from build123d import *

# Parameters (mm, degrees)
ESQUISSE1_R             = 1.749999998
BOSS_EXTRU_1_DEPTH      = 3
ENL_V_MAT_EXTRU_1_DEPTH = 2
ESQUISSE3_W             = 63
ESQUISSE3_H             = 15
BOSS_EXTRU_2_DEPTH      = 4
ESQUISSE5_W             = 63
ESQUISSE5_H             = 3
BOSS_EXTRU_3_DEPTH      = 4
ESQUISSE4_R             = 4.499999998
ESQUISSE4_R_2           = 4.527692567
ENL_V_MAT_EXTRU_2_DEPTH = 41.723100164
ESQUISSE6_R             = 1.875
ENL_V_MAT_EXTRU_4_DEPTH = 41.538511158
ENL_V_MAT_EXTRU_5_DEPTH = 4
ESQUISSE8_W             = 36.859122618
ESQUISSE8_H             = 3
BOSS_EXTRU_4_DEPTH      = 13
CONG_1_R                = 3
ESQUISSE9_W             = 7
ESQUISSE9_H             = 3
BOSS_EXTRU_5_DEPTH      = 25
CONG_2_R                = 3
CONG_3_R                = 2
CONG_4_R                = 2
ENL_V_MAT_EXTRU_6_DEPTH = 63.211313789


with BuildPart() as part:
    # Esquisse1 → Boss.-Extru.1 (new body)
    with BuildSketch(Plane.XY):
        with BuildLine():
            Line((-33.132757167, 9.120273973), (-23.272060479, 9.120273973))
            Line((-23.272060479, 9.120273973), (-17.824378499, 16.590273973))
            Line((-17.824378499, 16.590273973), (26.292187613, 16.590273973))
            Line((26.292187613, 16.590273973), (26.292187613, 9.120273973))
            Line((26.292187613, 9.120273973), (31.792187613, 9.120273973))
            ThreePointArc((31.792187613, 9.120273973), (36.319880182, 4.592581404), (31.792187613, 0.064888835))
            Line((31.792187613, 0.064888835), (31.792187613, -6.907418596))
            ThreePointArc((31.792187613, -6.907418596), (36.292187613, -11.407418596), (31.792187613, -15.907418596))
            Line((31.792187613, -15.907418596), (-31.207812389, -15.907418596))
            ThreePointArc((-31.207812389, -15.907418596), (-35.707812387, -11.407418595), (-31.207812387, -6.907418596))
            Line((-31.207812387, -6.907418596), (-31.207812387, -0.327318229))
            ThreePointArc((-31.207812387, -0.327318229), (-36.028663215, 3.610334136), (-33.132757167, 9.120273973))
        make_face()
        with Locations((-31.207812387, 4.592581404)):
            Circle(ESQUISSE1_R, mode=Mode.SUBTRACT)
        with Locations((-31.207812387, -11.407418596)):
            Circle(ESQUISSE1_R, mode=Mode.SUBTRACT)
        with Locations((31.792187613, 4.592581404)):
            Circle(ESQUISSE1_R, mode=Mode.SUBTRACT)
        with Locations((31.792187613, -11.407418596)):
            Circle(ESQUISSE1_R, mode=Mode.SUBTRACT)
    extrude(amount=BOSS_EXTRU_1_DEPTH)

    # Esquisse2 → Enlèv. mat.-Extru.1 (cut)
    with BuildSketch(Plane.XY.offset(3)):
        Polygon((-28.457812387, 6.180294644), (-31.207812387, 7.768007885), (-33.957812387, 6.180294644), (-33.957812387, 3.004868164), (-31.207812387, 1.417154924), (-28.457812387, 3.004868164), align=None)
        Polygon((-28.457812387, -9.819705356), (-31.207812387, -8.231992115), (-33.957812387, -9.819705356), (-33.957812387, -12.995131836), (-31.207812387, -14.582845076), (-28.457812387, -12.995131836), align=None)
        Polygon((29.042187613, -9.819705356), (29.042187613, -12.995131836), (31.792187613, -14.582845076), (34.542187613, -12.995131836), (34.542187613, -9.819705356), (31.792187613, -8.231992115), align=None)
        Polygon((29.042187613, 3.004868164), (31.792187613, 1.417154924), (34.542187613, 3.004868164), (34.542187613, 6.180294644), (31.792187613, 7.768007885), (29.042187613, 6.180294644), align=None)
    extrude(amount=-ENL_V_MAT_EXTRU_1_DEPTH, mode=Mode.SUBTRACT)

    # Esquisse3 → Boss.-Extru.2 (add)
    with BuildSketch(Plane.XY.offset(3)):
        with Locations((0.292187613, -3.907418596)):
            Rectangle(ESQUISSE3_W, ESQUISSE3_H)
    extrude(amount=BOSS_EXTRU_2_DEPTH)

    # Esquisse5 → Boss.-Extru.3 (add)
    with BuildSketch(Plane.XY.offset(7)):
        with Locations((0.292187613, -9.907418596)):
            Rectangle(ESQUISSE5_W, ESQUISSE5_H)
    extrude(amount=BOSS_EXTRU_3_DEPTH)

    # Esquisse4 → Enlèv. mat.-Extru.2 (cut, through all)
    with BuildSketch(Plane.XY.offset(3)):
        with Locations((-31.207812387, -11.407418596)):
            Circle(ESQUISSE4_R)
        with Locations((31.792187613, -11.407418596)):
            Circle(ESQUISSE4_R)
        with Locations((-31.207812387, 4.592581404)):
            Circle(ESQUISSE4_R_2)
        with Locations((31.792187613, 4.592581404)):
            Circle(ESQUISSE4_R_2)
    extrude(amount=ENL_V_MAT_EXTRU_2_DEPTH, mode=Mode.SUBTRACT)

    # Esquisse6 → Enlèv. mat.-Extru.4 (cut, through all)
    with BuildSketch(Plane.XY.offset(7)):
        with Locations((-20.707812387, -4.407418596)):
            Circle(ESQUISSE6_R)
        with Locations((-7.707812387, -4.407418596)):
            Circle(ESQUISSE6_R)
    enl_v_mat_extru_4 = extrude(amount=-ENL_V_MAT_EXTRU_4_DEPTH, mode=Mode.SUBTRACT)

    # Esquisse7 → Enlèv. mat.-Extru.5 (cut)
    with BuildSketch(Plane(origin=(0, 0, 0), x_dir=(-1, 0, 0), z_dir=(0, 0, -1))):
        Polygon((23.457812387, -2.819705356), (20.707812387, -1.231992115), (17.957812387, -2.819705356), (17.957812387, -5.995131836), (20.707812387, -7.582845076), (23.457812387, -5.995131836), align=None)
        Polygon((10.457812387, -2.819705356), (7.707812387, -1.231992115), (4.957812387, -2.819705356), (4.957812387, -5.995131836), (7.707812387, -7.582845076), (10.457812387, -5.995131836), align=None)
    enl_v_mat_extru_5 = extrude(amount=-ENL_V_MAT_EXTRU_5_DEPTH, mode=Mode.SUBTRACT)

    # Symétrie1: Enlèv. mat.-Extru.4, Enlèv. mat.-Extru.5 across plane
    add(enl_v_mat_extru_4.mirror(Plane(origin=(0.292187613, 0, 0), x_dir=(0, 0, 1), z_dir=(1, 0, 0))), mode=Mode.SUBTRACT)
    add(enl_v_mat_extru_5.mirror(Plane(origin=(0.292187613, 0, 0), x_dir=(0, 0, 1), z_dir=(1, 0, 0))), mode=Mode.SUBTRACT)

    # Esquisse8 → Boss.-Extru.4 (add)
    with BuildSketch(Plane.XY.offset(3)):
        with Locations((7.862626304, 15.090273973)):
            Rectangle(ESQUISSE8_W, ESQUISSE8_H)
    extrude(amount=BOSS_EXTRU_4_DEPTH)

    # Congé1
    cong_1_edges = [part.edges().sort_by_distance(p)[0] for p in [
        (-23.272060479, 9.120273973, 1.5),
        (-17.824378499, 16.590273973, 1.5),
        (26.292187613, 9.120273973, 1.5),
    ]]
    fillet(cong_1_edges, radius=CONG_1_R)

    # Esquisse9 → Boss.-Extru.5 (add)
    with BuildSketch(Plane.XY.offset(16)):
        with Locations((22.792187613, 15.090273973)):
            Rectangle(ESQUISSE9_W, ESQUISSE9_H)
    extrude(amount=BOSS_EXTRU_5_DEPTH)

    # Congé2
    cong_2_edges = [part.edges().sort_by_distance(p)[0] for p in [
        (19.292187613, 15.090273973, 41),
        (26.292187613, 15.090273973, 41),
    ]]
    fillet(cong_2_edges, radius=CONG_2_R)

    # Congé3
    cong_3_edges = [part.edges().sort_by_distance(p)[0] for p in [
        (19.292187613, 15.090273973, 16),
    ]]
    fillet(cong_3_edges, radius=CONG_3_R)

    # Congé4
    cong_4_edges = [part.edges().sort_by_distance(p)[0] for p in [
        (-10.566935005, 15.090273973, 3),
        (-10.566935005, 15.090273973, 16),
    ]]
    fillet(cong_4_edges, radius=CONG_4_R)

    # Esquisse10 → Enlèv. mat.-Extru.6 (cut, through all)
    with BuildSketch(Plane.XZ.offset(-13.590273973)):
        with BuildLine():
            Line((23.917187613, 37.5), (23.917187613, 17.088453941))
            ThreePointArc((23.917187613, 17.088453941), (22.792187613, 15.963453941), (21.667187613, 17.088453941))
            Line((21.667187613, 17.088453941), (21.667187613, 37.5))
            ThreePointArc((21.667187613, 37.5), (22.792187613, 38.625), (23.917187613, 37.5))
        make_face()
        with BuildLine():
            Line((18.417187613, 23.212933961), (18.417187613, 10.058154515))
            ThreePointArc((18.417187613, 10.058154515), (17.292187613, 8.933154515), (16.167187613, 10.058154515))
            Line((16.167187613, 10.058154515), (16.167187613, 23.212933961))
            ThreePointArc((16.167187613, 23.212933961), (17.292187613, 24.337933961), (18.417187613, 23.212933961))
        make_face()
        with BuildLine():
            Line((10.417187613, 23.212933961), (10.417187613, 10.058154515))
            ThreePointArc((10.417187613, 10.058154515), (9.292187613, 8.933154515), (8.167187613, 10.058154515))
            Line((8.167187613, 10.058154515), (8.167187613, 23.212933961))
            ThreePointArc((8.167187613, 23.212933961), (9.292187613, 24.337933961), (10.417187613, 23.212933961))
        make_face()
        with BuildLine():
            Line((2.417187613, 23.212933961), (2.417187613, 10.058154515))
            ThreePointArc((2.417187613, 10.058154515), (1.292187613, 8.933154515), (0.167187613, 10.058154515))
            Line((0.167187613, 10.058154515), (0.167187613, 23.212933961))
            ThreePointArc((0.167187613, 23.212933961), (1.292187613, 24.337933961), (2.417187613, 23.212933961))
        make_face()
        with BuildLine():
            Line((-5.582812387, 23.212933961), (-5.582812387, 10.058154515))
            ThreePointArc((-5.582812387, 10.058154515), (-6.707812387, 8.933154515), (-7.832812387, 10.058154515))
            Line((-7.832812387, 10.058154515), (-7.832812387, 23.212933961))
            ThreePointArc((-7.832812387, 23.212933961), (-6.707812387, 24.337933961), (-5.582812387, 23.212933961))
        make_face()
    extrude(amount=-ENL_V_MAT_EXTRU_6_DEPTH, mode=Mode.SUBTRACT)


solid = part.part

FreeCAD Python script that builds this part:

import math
import FreeCAD as App
import Part
import Sketcher

V = App.Vector
Q = App.Units.Quantity


def edges_at(feature, points):
    """Names of the edges that pass closest to the given points."""
    edges = feature.Shape.Edges
    near = lambda p: min(range(len(edges)), key=lambda i: edges[i].distToShape(Part.Vertex(*p))[0])
    return sorted({f"Edge{near(p) + 1}" for p in points})

doc = App.newDocument("Part")
params = doc.addObject("Spreadsheet::Sheet", "Params")
for row, (alias, value) in enumerate([
    ("sketch1_diameter", "3.5 mm"),
    ("sketch1_radius", "4.5 mm"),
    ("sketch1_width", "63 mm"),
    ("sketch1_width2", "5.5 mm"),
    ("sketch1_height", "7.47 mm"),
    ("pad1_length", "3 mm"),
    ("pocket1_length", "2 mm"),
    ("sketch3_width", "63 mm"),
    ("sketch3_height", "15 mm"),
    ("pad2_length", "4 mm"),
    ("sketch4_width", "63 mm"),
    ("sketch4_height", "3 mm"),
    ("pad3_length", "4 mm"),
    ("sketch5_diameter", "9 mm"),
    ("sketch6_diameter", "3.75 mm"),
    ("pocket4_length", "4 mm"),
    ("sketch8_height", "3 mm"),
    ("pad4_length", "13 mm"),
    ("fillet_radius", "3 mm"),
    ("sketch9_width", "7 mm"),
    ("sketch9_height", "3 mm"),
    ("pad5_length", "25 mm"),
    ("fillet2_radius", "3 mm"),
    ("fillet3_radius", "2 mm"),
    ("fillet4_radius", "2 mm"),
], start=1):
    params.set(f"A{row}", alias)
    params.set(f"B{row}", "=" + value)
    params.setAlias(f"B{row}", alias)

body = doc.addObject("PartDesign::Body", "Body")

# Sketch on XY plane
sketch1 = body.newObject("Sketcher::SketchObject", "Sketch")
sketch1.AttachmentSupport = (doc.getObject("XY_Plane"), [""])
sketch1.MapMode = "FlatFace"
sketch1.addGeometry([
    Part.LineSegment(V(-23.3, 9.1, 0), V(-33.1, 9.1, 0)),  # 0
    Part.ArcOfCircle(Part.Circle(V(-31.2, 4.6, 0), V(0, 0, 1), 4.9), math.radians(113), math.radians(270)),  # 1
    Part.LineSegment(V(-31.2, -0.3, 0), V(-31.2, -6.9, 0)),  # 2
    Part.ArcOfCircle(Part.Circle(V(-31.2, -11.4, 0), V(0, 0, 1), 4.5), math.radians(90), math.radians(270)),  # 3
    Part.LineSegment(V(-31.2, -15.9, 0), V(31.8, -15.9, 0)),  # 4
    Part.ArcOfCircle(Part.Circle(V(31.8, -11.4, 0), V(0, 0, 1), 4.5), math.radians(-90), math.radians(90)),  # 5
    Part.LineSegment(V(31.8, -6.9, 0), V(31.8, 0.1, 0)),  # 6
    Part.ArcOfCircle(Part.Circle(V(31.8, 4.6, 0), V(0, 0, 1), 4.5), math.radians(-90), math.radians(90)),  # 7
    Part.LineSegment(V(31.8, 9.1, 0), V(26.3, 9.1, 0)),  # 8
    Part.LineSegment(V(26.3, 9.1, 0), V(26.3, 16.6, 0)),  # 9
    Part.LineSegment(V(26.3, 16.6, 0), V(-17.8, 16.6, 0)),  # 10
    Part.LineSegment(V(-17.8, 16.6, 0), V(-23.3, 9.1, 0)),  # 11
    Part.Circle(V(31.8, -11.4, 0), V(0, 0, 1), 1.7),  # 12
    Part.Circle(V(-31.2, -11.4, 0), V(0, 0, 1), 1.7),  # 13
    Part.Circle(V(31.8, 4.6, 0), V(0, 0, 1), 1.7),  # 14
    Part.Circle(V(-31.2, 4.6, 0), V(0, 0, 1), 1.7),  # 15
], False)
sketch1.addConstraint([
    Sketcher.Constraint("Coincident", 0, 2, 1, 1),
    Sketcher.Constraint("Coincident", 1, 2, 2, 1),
    Sketcher.Constraint("Coincident", 2, 2, 3, 1),
    Sketcher.Constraint("Tangent", 3, 2, 4, 1),
    Sketcher.Constraint("Tangent", 4, 2, 5, 1),
    Sketcher.Constraint("Coincident", 5, 2, 6, 1),
    Sketcher.Constraint("Coincident", 6, 2, 7, 1),
    Sketcher.Constraint("Tangent", 7, 2, 8, 1),
    Sketcher.Constraint("Coincident", 8, 2, 9, 1),
    Sketcher.Constraint("Coincident", 9, 2, 10, 1),
    Sketcher.Constraint("Coincident", 10, 2, 11, 1),
    Sketcher.Constraint("Coincident", 11, 2, 0, 1),
    Sketcher.Constraint("Horizontal", 0),
    Sketcher.Constraint("Vertical", 2),
    Sketcher.Constraint("Horizontal", 4),
    Sketcher.Constraint("Vertical", 6),
    Sketcher.Constraint("Horizontal", 8),
    Sketcher.Constraint("Vertical", 9),
    Sketcher.Constraint("Horizontal", 10),
    Sketcher.Constraint("Coincident", 12, 3, 5, 3),
    Sketcher.Constraint("Coincident", 13, 3, 3, 3),
    Sketcher.Constraint("Coincident", 14, 3, 7, 3),
    Sketcher.Constraint("Coincident", 15, 3, 1, 3),
    Sketcher.Constraint("Equal", 3, 5),
    Sketcher.Constraint("Equal", 12, 13),
    Sketcher.Constraint("Equal", 13, 14),
    Sketcher.Constraint("Equal", 14, 15),
    Sketcher.Constraint("Horizontal", 1, 3, 7, 3),
    Sketcher.Constraint("Horizontal", 0, 2, 7, 2),
    Sketcher.Constraint("Vertical", 1, 3, 3, 3),
    Sketcher.Constraint("Vertical", 5, 3, 7, 3),
    Sketcher.Constraint("Vertical", 15, 3, 1, 2),
    Sketcher.Constraint("Vertical", 4, 2, 5, 2),
    Sketcher.Constraint("Diameter", 12, 3.5),
    Sketcher.Constraint("Radius", 3, 4.5),
    Sketcher.Constraint("DistanceX", 4, 1, 4, 2, 63.0),
    Sketcher.Constraint("DistanceX", 8, 2, 8, 1, 5.5),
    Sketcher.Constraint("DistanceY", 3, 3, 1, 3, 16.0),
    Sketcher.Constraint("DistanceY", 9, 1, 9, 2, 7.47),
    Sketcher.Constraint("Radius", 1, 4.9199),
    Sketcher.Constraint("Radius", 7, 4.527693),
    Sketcher.Constraint("Distance", 11, 9.245439),
    Sketcher.Constraint("DistanceX", 0, 2, 0, 1, 9.860697),
    Sketcher.Constraint("DistanceY", -1, 1, 1, 3, 4.592581),
    Sketcher.Constraint("DistanceX", 10, 2, -1, 1, 17.824378),
])
sketch1.setExpression("Constraints[33]", "Params.sketch1_diameter")
sketch1.setExpression("Constraints[34]", "Params.sketch1_radius")
sketch1.setExpression("Constraints[35]", "Params.sketch1_width")
sketch1.setExpression("Constraints[36]", "Params.sketch1_width2")
sketch1.setExpression("Constraints[38]", "Params.sketch1_height")
pad1 = body.newObject("PartDesign::Pad", "Pad")
pad1.Profile = sketch1
pad1.setExpression("Length", "Params.pad1_length")

# Sketch on XY plane
sketch2 = body.newObject("Sketcher::SketchObject", "Sketch001")
sketch2.AttachmentSupport = (doc.getObject("XY_Plane"), [""])
sketch2.MapMode = "FlatFace"
sketch2.AttachmentOffset = App.Placement(V(0, 0, 3), App.Rotation())
sketch2.addGeometry([
    Part.LineSegment(V(-28.5, 6.2, 0), V(-31.2, 7.8, 0)),  # 0
    Part.LineSegment(V(-31.2, 7.8, 0), V(-34, 6.2, 0)),  # 1
    Part.LineSegment(V(-34, 6.2, 0), V(-34, 3, 0)),  # 2
    Part.LineSegment(V(-34, 3, 0), V(-31.2, 1.4, 0)),  # 3
    Part.LineSegment(V(-31.2, 1.4, 0), V(-28.5, 3, 0)),  # 4
    Part.LineSegment(V(-28.5, 3, 0), V(-28.5, 6.2, 0)),  # 5
    Part.LineSegment(V(-28.5, -9.8, 0), V(-31.2, -8.2, 0)),  # 6
    Part.LineSegment(V(-31.2, -8.2, 0), V(-34, -9.8, 0)),  # 7
    Part.LineSegment(V(-34, -9.8, 0), V(-34, -13, 0)),  # 8
    Part.LineSegment(V(-34, -13, 0), V(-31.2, -14.6, 0)),  # 9
    Part.LineSegment(V(-31.2, -14.6, 0), V(-28.5, -13, 0)),  # 10
    Part.LineSegment(V(-28.5, -13, 0), V(-28.5, -9.8, 0)),  # 11
    Part.LineSegment(V(29, -9.8, 0), V(29, -13, 0)),  # 12
    Part.LineSegment(V(29, -13, 0), V(31.8, -14.6, 0)),  # 13
    Part.LineSegment(V(31.8, -14.6, 0), V(34.5, -13, 0)),  # 14
    Part.LineSegment(V(34.5, -13, 0), V(34.5, -9.8, 0)),  # 15
    Part.LineSegment(V(34.5, -9.8, 0), V(31.8, -8.2, 0)),  # 16
    Part.LineSegment(V(31.8, -8.2, 0), V(29, -9.8, 0)),  # 17
    Part.LineSegment(V(29, 3, 0), V(31.8, 1.4, 0)),  # 18
    Part.LineSegment(V(31.8, 1.4, 0), V(34.5, 3, 0)),  # 19
    Part.LineSegment(V(34.5, 3, 0), V(34.5, 6.2, 0)),  # 20
    Part.LineSegment(V(34.5, 6.2, 0), V(31.8, 7.8, 0)),  # 21
    Part.LineSegment(V(31.8, 7.8, 0), V(29, 6.2, 0)),  # 22
    Part.LineSegment(V(29, 6.2, 0), V(29, 3, 0)),  # 23
], False)
sketch2.addConstraint([
    Sketcher.Constraint("Coincident", 0, 2, 1, 1),
    Sketcher.Constraint("Coincident", 1, 2, 2, 1),
    Sketcher.Constraint("Coincident", 2, 2, 3, 1),
    Sketcher.Constraint("Coincident", 3, 2, 4, 1),
    Sketcher.Constraint("Coincident", 4, 2, 5, 1),
    Sketcher.Constraint("Coincident", 5, 2, 0, 1),
    Sketcher.Constraint("Coincident", 6, 2, 7, 1),
    Sketcher.Constraint("Coincident", 7, 2, 8, 1),
    Sketcher.Constraint("Coincident", 8, 2, 9, 1),
    Sketcher.Constraint("Coincident", 9, 2, 10, 1),
    Sketcher.Constraint("Coincident", 10, 2, 11, 1),
    Sketcher.Constraint("Coincident", 11, 2, 6, 1),
    Sketcher.Constraint("Coincident", 12, 2, 13, 1),
    Sketcher.Constraint("Coincident", 13, 2, 14, 1),
    Sketcher.Constraint("Coincident", 14, 2, 15, 1),
    Sketcher.Constraint("Coincident", 15, 2, 16, 1),
    Sketcher.Constraint("Coincident", 16, 2, 17, 1),
    Sketcher.Constraint("Coincident", 17, 2, 12, 1),
    Sketcher.Constraint("Coincident", 18, 2, 19, 1),
    Sketcher.Constraint("Coincident", 19, 2, 20, 1),
    Sketcher.Constraint("Coincident", 20, 2, 21, 1),
    Sketcher.Constraint("Coincident", 21, 2, 22, 1),
    Sketcher.Constraint("Coincident", 22, 2, 23, 1),
    Sketcher.Constraint("Coincident", 23, 2, 18, 1),
    Sketcher.Constraint("Vertical", 2),
    Sketcher.Constraint("Vertical", 5),
    Sketcher.Constraint("Vertical", 8),
    Sketcher.Constraint("Vertical", 11),
    Sketcher.Constraint("Vertical", 12),
    Sketcher.Constraint("Vertical", 15),
    Sketcher.Constraint("Vertical", 20),
    Sketcher.Constraint("Vertical", 23),
    Sketcher.Constraint("Parallel", 0, 3),
    Sketcher.Constraint("Parallel", 1, 4),
    Sketcher.Constraint("Parallel", 3, 6),
    Sketcher.Constraint("Parallel", 4, 7),
    Sketcher.Constraint("Parallel", 6, 9),
    Sketcher.Constraint("Parallel", 7, 10),
    Sketcher.Constraint("Parallel", 9, 13),
    Sketcher.Constraint("Parallel", 10, 14),
    Sketcher.Constraint("Parallel", 13, 16),
    Sketcher.Constraint("Parallel", 14, 17),
    Sketcher.Constraint("Parallel", 16, 18),
    Sketcher.Constraint("Parallel", 17, 19),
    Sketcher.Constraint("Parallel", 18, 21),
    Sketcher.Constraint("Parallel", 19, 22),
    Sketcher.Constraint("Horizontal", 2, 2, 4, 2),
    Sketcher.Constraint("Horizontal", 1, 2, 5, 2),
    Sketcher.Constraint("Horizontal", 8, 2, 10, 2),
    Sketcher.Constraint("Horizontal", 7, 2, 11, 2),
    Sketcher.Constraint("Horizontal", 10, 2, 12, 2),
    Sketcher.Constraint("Horizontal", 9, 2, 13, 2),
    Sketcher.Constraint("Horizontal", 12, 2, 14, 2),
    Sketcher.Constraint("Horizontal", 11, 2, 15, 2),
    Sketcher.Constraint("Horizontal", 6, 2, 16, 2),
    Sketcher.Constraint("Horizontal", 3, 2, 18, 2),
    Sketcher.Constraint("Horizontal", 4, 2, 19, 2),
    Sketcher.Constraint("Horizontal", 5, 2, 20, 2),
    Sketcher.Constraint("Horizontal", 0, 2, 21, 2),
    Sketcher.Constraint("Horizontal", 20, 2, 22, 2),
    Sketcher.Constraint("Vertical", 0, 2, 3, 2),
    Sketcher.Constraint("Vertical", 3, 2, 6, 2),
    Sketcher.Constraint("Vertical", 2, 2, 7, 2),
    Sketcher.Constraint("Vertical", 16, 2, 18, 2),
    Sketcher.Constraint("Equal", 5, 8),
    Sketcher.Constraint("Angle", 0, Q("150 deg")),
    Sketcher.Constraint("DistanceY", 7, 2, 1, 2, 16.0),
    Sketcher.Constraint("DistanceX", 9, 2, 13, 2, 63.0),
    Sketcher.Constraint("DistanceX", 2, 2, 4, 2, 5.5),
    Sketcher.Constraint("DistanceY", 2, 2, 2, 1, 3.175426),
    Sketcher.Constraint("DistanceY", -1, 1, 2, 2, 3.004868),
    Sketcher.Constraint("DistanceX", 0, 2, -1, 1, 31.207812),
])
pocket1 = body.newObject("PartDesign::Pocket", "Pocket")
pocket1.Profile = sketch2
pocket1.setExpression("Length", "Params.pocket1_length")

# Sketch on XY plane
sketch3 = body.newObject("Sketcher::SketchObject", "Sketch002")
sketch3.AttachmentSupport = (doc.getObject("XY_Plane"), [""])
sketch3.MapMode = "FlatFace"
sketch3.AttachmentOffset = App.Placement(V(0, 0, 3), App.Rotation())
sketch3.addGeometry([
    Part.LineSegment(V(-31, 4, 0), V(-31, -11, 0)),
    Part.LineSegment(V(-31, -11, 0), V(32, -11, 0)),
    Part.LineSegment(V(32, -11, 0), V(32, 4, 0)),
    Part.LineSegment(V(32, 4, 0), V(-31, 4, 0)),
], False)
sketch3.addConstraint([
    Sketcher.Constraint("Coincident", 0, 2, 1, 1),
    Sketcher.Constraint("Coincident", 1, 2, 2, 1),
    Sketcher.Constraint("Coincident", 2, 2, 3, 1),
    Sketcher.Constraint("Coincident", 3, 2, 0, 1),
    Sketcher.Constraint("Vertical", 0),
    Sketcher.Constraint("Horizontal", 1),
    Sketcher.Constraint("Vertical", 2),
    Sketcher.Constraint("Horizontal", 3),
    Sketcher.Constraint("DistanceX", 1, 1, 1, 2, 63.0),
    Sketcher.Constraint("DistanceY", 0, 2, 0, 1, 15.0),
    Sketcher.Constraint("DistanceY", 0, 2, -1, 1, 11.407419),
    Sketcher.Constraint("DistanceX", 0, 2, -1, 1, 31.207812),
])
sketch3.setExpression("Constraints[8]", "Params.sketch3_width")
sketch3.setExpression("Constraints[9]", "Params.sketch3_height")
pad2 = body.newObject("PartDesign::Pad", "Pad001")
pad2.Profile = sketch3
pad2.setExpression("Length", "Params.pad2_length")

# Sketch on XY plane
sketch4 = body.newObject("Sketcher::SketchObject", "Sketch003")
sketch4.AttachmentSupport = (doc.getObject("XY_Plane"), [""])
sketch4.MapMode = "FlatFace"
sketch4.AttachmentOffset = App.Placement(V(0, 0, 7), App.Rotation())
sketch4.addGeometry([
    Part.LineSegment(V(-31.2, -8.4, 0), V(-31.2, -11.4, 0)),
    Part.LineSegment(V(-31.2, -11.4, 0), V(31.8, -11.4, 0)),
    Part.LineSegment(V(31.8, -11.4, 0), V(31.8, -8.4, 0)),
    Part.LineSegment(V(31.8, -8.4, 0), V(-31.2, -8.4, 0)),
], False)
sketch4.addConstraint([
    Sketcher.Constraint("Coincident", 0, 2, 1, 1),
    Sketcher.Constraint("Coincident", 1, 2, 2, 1),
    Sketcher.Constraint("Coincident", 2, 2, 3, 1),
    Sketcher.Constraint("Coincident", 3, 2, 0, 1),
    Sketcher.Constraint("Vertical", 0),
    Sketcher.Constraint("Horizontal", 1),
    Sketcher.Constraint("Vertical", 2),
    Sketcher.Constraint("Horizontal", 3),
    Sketcher.Constraint("DistanceX", 1, 1, 1, 2, 63.0),
    Sketcher.Constraint("DistanceY", 0, 2, 0, 1, 3.0),
    Sketcher.Constraint("DistanceY", 0, 2, -1, 1, 11.407419),
    Sketcher.Constraint("DistanceX", 0, 2, -1, 1, 31.207812),
])
sketch4.setExpression("Constraints[8]", "Params.sketch4_width")
sketch4.setExpression("Constraints[9]", "Params.sketch4_height")
pad3 = body.newObject("PartDesign::Pad", "Pad002")
pad3.Profile = sketch4
pad3.setExpression("Length", "Params.pad3_length")

# Sketch on XY plane
sketch5 = body.newObject("Sketcher::SketchObject", "Sketch004")
sketch5.AttachmentSupport = (doc.getObject("XY_Plane"), [""])
sketch5.MapMode = "FlatFace"
sketch5.AttachmentOffset = App.Placement(V(0, 0, 3), App.Rotation())
sketch5.addGeometry([
    Part.Circle(V(-31.2, -11.4, 0), V(0, 0, 1), 4.5),
    Part.Circle(V(31.8, -11.4, 0), V(0, 0, 1), 4.5),
    Part.Circle(V(-31.2, 4.6, 0), V(0, 0, 1), 4.5),
    Part.Circle(V(31.8, 4.6, 0), V(0, 0, 1), 4.5),
], False)
sketch5.addConstraint([
    Sketcher.Constraint("Equal", 0, 1),
    Sketcher.Constraint("Equal", 2, 3),
    Sketcher.Constraint("Horizontal", 0, 3, 1, 3),
    Sketcher.Constraint("Horizontal", 2, 3, 3, 3),
    Sketcher.Constraint("Vertical", 0, 3, 2, 3),
    Sketcher.Constraint("Vertical", 1, 3, 3, 3),
    Sketcher.Constraint("Diameter", 0, 9.0),
    Sketcher.Constraint("DistanceX", 0, 3, 1, 3, 63.0),
    Sketcher.Constraint("DistanceY", 0, 3, 2, 3, 16.0),
    Sketcher.Constraint("Diameter", 2, 9.055385),
    Sketcher.Constraint("DistanceY", 0, 3, -1, 1, 11.407419),
    Sketcher.Constraint("DistanceX", 0, 3, -1, 1, 31.207812),
])
sketch5.setExpression("Constraints[6]", "Params.sketch5_diameter")
pocket2 = body.newObject("PartDesign::Pocket", "Pocket001")
pocket2.Profile = sketch5
pocket2.Type = "ThroughAll"
pocket2.Reversed = True

# Sketch on XY plane
sketch6 = body.newObject("Sketcher::SketchObject", "Sketch005")
sketch6.AttachmentSupport = (doc.getObject("XY_Plane"), [""])
sketch6.MapMode = "FlatFace"
sketch6.AttachmentOffset = App.Placement(V(0, 0, 7), App.Rotation())
sketch6.addGeometry([
    Part.Circle(V(-20.7, -4.4, 0), V(0, 0, 1), 1.9),
    Part.Circle(V(-7.7, -4.4, 0), V(0, 0, 1), 1.9),
], False)
sketch6.addConstraint([
    Sketcher.Constraint("Equal", 0, 1),
    Sketcher.Constraint("Horizontal", 0, 3, 1, 3),
    Sketcher.Constraint("Diameter", 0, 3.75),
    Sketcher.Constraint("DistanceX", 0, 3, 1, 3, 13.0),
    Sketcher.Constraint("DistanceY", 0, 3, -1, 1, 4.407419),
    Sketcher.Constraint("DistanceX", 0, 3, -1, 1, 20.707812),
])
sketch6.setExpression("Constraints[2]", "Params.sketch6_diameter")
pocket3 = body.newObject("PartDesign::Pocket", "Pocket002")
pocket3.Profile = sketch6
pocket3.Type = "ThroughAll"

# Sketch on XY plane
sketch7 = body.newObject("Sketcher::SketchObject", "Sketch006")
sketch7.AttachmentSupport = (doc.getObject("XY_Plane"), [""])
sketch7.MapMode = "FlatFace"
sketch7.addGeometry([
    Part.LineSegment(V(-23.5, -2.8, 0), V(-20.7, -1.2, 0)),  # 0
    Part.LineSegment(V(-20.7, -1.2, 0), V(-18, -2.8, 0)),  # 1
    Part.LineSegment(V(-18, -2.8, 0), V(-18, -6, 0)),  # 2
    Part.LineSegment(V(-18, -6, 0), V(-20.7, -7.6, 0)),  # 3
    Part.LineSegment(V(-20.7, -7.6, 0), V(-23.5, -6, 0)),  # 4
    Part.LineSegment(V(-23.5, -6, 0), V(-23.5, -2.8, 0)),  # 5
    Part.LineSegment(V(-10.5, -2.8, 0), V(-7.7, -1.2, 0)),  # 6
    Part.LineSegment(V(-7.7, -1.2, 0), V(-5, -2.8, 0)),  # 7
    Part.LineSegment(V(-5, -2.8, 0), V(-5, -6, 0)),  # 8
    Part.LineSegment(V(-5, -6, 0), V(-7.7, -7.6, 0)),  # 9
    Part.LineSegment(V(-7.7, -7.6, 0), V(-10.5, -6, 0)),  # 10
    Part.LineSegment(V(-10.5, -6, 0), V(-10.5, -2.8, 0)),  # 11
], False)
sketch7.addConstraint([
    Sketcher.Constraint("Coincident", 0, 2, 1, 1),
    Sketcher.Constraint("Coincident", 1, 2, 2, 1),
    Sketcher.Constraint("Coincident", 2, 2, 3, 1),
    Sketcher.Constraint("Coincident", 3, 2, 4, 1),
    Sketcher.Constraint("Coincident", 4, 2, 5, 1),
    Sketcher.Constraint("Coincident", 5, 2, 0, 1),
    Sketcher.Constraint("Coincident", 6, 2, 7, 1),
    Sketcher.Constraint("Coincident", 7, 2, 8, 1),
    Sketcher.Constraint("Coincident", 8, 2, 9, 1),
    Sketcher.Constraint("Coincident", 9, 2, 10, 1),
    Sketcher.Constraint("Coincident", 10, 2, 11, 1),
    Sketcher.Constraint("Coincident", 11, 2, 6, 1),
    Sketcher.Constraint("Vertical", 2),
    Sketcher.Constraint("Vertical", 5),
    Sketcher.Constraint("Vertical", 8),
    Sketcher.Constraint("Vertical", 11),
    Sketcher.Constraint("Parallel", 0, 3),
    Sketcher.Constraint("Parallel", 1, 4),
    Sketcher.Constraint("Parallel", 3, 6),
    Sketcher.Constraint("Parallel", 4, 7),
    Sketcher.Constraint("Parallel", 6, 9),
    Sketcher.Constraint("Parallel", 7, 10),
    Sketcher.Constraint("Horizontal", 2, 2, 4, 2),
    Sketcher.Constraint("Horizontal", 1, 2, 5, 2),
    Sketcher.Constraint("Horizontal", 0, 2, 6, 2),
    Sketcher.Constraint("Horizontal", 5, 2, 7, 2),
    Sketcher.Constraint("Horizontal", 4, 2, 8, 2),
    Sketcher.Constraint("Horizontal", 3, 2, 9, 2),
    Sketcher.Constraint("Horizontal", 8, 2, 10, 2),
    Sketcher.Constraint("Vertical", 0, 2, 3, 2),
    Sketcher.Constraint("Angle", 0, Q("30 deg")),
    Sketcher.Constraint("DistanceX", 0, 2, 6, 2, 13.0),
    Sketcher.Constraint("DistanceX", 4, 2, 2, 2, 5.5),
    Sketcher.Constraint("DistanceY", 2, 2, 2, 1, 3.175426),
    Sketcher.Constraint("DistanceY", 2, 2, -1, 1, 5.995132),
    Sketcher.Constraint("DistanceX", 0, 2, -1, 1, 20.707812),
])
pocket4 = body.newObject("PartDesign::Pocket", "Pocket003")
pocket4.Profile = sketch7
pocket4.setExpression("Length", "Params.pocket4_length")
pocket4.Reversed = True
doc.recompute()

datumplane = body.newObject("PartDesign::Plane", "DatumPlane")
datumplane.AttachmentSupport = (doc.getObject("YZ_Plane"), [""])
datumplane.MapMode = "FlatFace"
datumplane.AttachmentOffset = App.Placement(V(0, 0, 0.292188), App.Rotation())
mirrored = body.newObject("PartDesign::Mirrored", "Mirrored")
mirrored.Originals = [pocket3, pocket4]
mirrored.MirrorPlane = (datumplane, [""])
body.Tip = mirrored

# Sketch on XY plane
sketch8 = body.newObject("Sketcher::SketchObject", "Sketch007")
sketch8.AttachmentSupport = (doc.getObject("XY_Plane"), [""])
sketch8.MapMode = "FlatFace"
sketch8.AttachmentOffset = App.Placement(V(0, 0, 3), App.Rotation())
sketch8.addGeometry([
    Part.LineSegment(V(-10.6, 16.6, 0), V(-10.6, 13.6, 0)),
    Part.LineSegment(V(-10.6, 13.6, 0), V(26.3, 13.6, 0)),
    Part.LineSegment(V(26.3, 13.6, 0), V(26.3, 16.6, 0)),
    Part.LineSegment(V(26.3, 16.6, 0), V(-10.6, 16.6, 0)),
], False)
sketch8.addConstraint([
    Sketcher.Constraint("Coincident", 0, 2, 1, 1),
    Sketcher.Constraint("Coincident", 1, 2, 2, 1),
    Sketcher.Constraint("Coincident", 2, 2, 3, 1),
    Sketcher.Constraint("Coincident", 3, 2, 0, 1),
    Sketcher.Constraint("Vertical", 0),
    Sketcher.Constraint("Horizontal", 1),
    Sketcher.Constraint("Vertical", 2),
    Sketcher.Constraint("Horizontal", 3),
    Sketcher.Constraint("DistanceY", 0, 2, 0, 1, 3.0),
    Sketcher.Constraint("DistanceX", 1, 1, 1, 2, 36.859123),
    Sketcher.Constraint("DistanceX", 0, 2, -1, 1, 10.566935),
    Sketcher.Constraint("DistanceY", -1, 1, 0, 2, 13.590274),
])
sketch8.setExpression("Constraints[8]", "Params.sketch8_height")
pad4 = body.newObject("PartDesign::Pad", "Pad003")
pad4.Profile = sketch8
pad4.setExpression("Length", "Params.pad4_length")
doc.recompute()

fillet = body.newObject("PartDesign::Fillet", "Fillet")
fillet.Base = (pad4, edges_at(pad4, [(-23.272, 9.12, 1.5), (-17.824, 16.59, 1.5), (26.292, 9.12, 1.5)]))
fillet.setExpression("Radius", "Params.fillet_radius")

# Sketch on XY plane
sketch9 = body.newObject("Sketcher::SketchObject", "Sketch008")
sketch9.AttachmentSupport = (doc.getObject("XY_Plane"), [""])
sketch9.MapMode = "FlatFace"
sketch9.AttachmentOffset = App.Placement(V(0, 0, 16), App.Rotation())
sketch9.addGeometry([
    Part.LineSegment(V(19.3, 16.6, 0), V(19.3, 13.6, 0)),
    Part.LineSegment(V(19.3, 13.6, 0), V(26.3, 13.6, 0)),
    Part.LineSegment(V(26.3, 13.6, 0), V(26.3, 16.6, 0)),
    Part.LineSegment(V(26.3, 16.6, 0), V(19.3, 16.6, 0)),
], False)
sketch9.addConstraint([
    Sketcher.Constraint("Coincident", 0, 2, 1, 1),
    Sketcher.Constraint("Coincident", 1, 2, 2, 1),
    Sketcher.Constraint("Coincident", 2, 2, 3, 1),
    Sketcher.Constraint("Coincident", 3, 2, 0, 1),
    Sketcher.Constraint("Vertical", 0),
    Sketcher.Constraint("Horizontal", 1),
    Sketcher.Constraint("Vertical", 2),
    Sketcher.Constraint("Horizontal", 3),
    Sketcher.Constraint("DistanceX", 1, 1, 1, 2, 7.0),
    Sketcher.Constraint("DistanceY", 0, 2, 0, 1, 3.0),
    Sketcher.Constraint("DistanceX", -1, 1, 0, 2, 19.292188),
    Sketcher.Constraint("DistanceY", -1, 1, 0, 2, 13.590274),
])
sketch9.setExpression("Constraints[8]", "Params.sketch9_width")
sketch9.setExpression("Constraints[9]", "Params.sketch9_height")
pad5 = body.newObject("PartDesign::Pad", "Pad004")
pad5.Profile = sketch9
pad5.setExpression("Length", "Params.pad5_length")
doc.recompute()

fillet2 = body.newObject("PartDesign::Fillet", "Fillet001")
fillet2.Base = (pad5, edges_at(pad5, [(19.292, 15.09, 41), (26.292, 15.09, 41)]))
fillet2.setExpression("Radius", "Params.fillet2_radius")
doc.recompute()

fillet3 = body.newObject("PartDesign::Fillet", "Fillet002")
fillet3.Base = (fillet2, edges_at(fillet2, [(19.292, 15.09, 16)]))
fillet3.setExpression("Radius", "Params.fillet3_radius")
doc.recompute()

fillet4 = body.newObject("PartDesign::Fillet", "Fillet003")
fillet4.Base = (fillet3, edges_at(fillet3, [(-10.567, 15.09, 3), (-10.567, 15.09, 16)]))
fillet4.setExpression("Radius", "Params.fillet4_radius")

# Sketch on XZ plane
sketch10 = body.newObject("Sketcher::SketchObject", "Sketch009")
sketch10.AttachmentSupport = (doc.getObject("XZ_Plane"), [""])
sketch10.MapMode = "FlatFace"
sketch10.AttachmentOffset = App.Placement(V(0, 0, -13.590274), App.Rotation())
sketch10.addGeometry([
    Part.LineSegment(V(23.9, 17.1, 0), V(23.9, 37.5, 0)),  # 0
    Part.ArcOfCircle(Part.Circle(V(22.8, 37.5, 0), V(0, 0, 1), 1.1), math.radians(0), math.radians(180)),  # 1
    Part.LineSegment(V(21.7, 37.5, 0), V(21.7, 17.1, 0)),  # 2
    Part.ArcOfCircle(Part.Circle(V(22.8, 17.1, 0), V(0, 0, 1), 1.1), math.radians(180), math.radians(360)),  # 3
    Part.LineSegment(V(18.4, 10.1, 0), V(18.4, 23.2, 0)),  # 4
    Part.ArcOfCircle(Part.Circle(V(17.3, 23.2, 0), V(0, 0, 1), 1.1), math.radians(0), math.radians(180)),  # 5
    Part.LineSegment(V(16.2, 23.2, 0), V(16.2, 10.1, 0)),  # 6
    Part.ArcOfCircle(Part.Circle(V(17.3, 10.1, 0), V(0, 0, 1), 1.1), math.radians(180), math.radians(360)),  # 7
    Part.LineSegment(V(10.4, 10.1, 0), V(10.4, 23.2, 0)),  # 8
    Part.ArcOfCircle(Part.Circle(V(9.3, 23.2, 0), V(0, 0, 1), 1.1), math.radians(0), math.radians(180)),  # 9
    Part.LineSegment(V(8.2, 23.2, 0), V(8.2, 10.1, 0)),  # 10
    Part.ArcOfCircle(Part.Circle(V(9.3, 10.1, 0), V(0, 0, 1), 1.1), math.radians(180), math.radians(360)),  # 11
    Part.LineSegment(V(2.4, 10.1, 0), V(2.4, 23.2, 0)),  # 12
    Part.ArcOfCircle(Part.Circle(V(1.3, 23.2, 0), V(0, 0, 1), 1.1), math.radians(0), math.radians(180)),  # 13
    Part.LineSegment(V(0.2, 23.2, 0), V(0.2, 10.1, 0)),  # 14
    Part.ArcOfCircle(Part.Circle(V(1.3, 10.1, 0), V(0, 0, 1), 1.1), math.radians(180), math.radians(360)),  # 15
    Part.LineSegment(V(-5.6, 10.1, 0), V(-5.6, 23.2, 0)),  # 16
    Part.ArcOfCircle(Part.Circle(V(-6.7, 23.2, 0), V(0, 0, 1), 1.1), math.radians(0), math.radians(180)),  # 17
    Part.LineSegment(V(-7.8, 23.2, 0), V(-7.8, 10.1, 0)),  # 18
    Part.ArcOfCircle(Part.Circle(V(-6.7, 10.1, 0), V(0, 0, 1), 1.1), math.radians(180), math.radians(360)),  # 19
], False)
sketch10.addConstraint([
    Sketcher.Constraint("Tangent", 0, 2, 1, 1),
    Sketcher.Constraint("Tangent", 1, 2, 2, 1),
    Sketcher.Constraint("Tangent", 2, 2, 3, 1),
    Sketcher.Constraint("Tangent", 3, 2, 0, 1),
    Sketcher.Constraint("Tangent", 4, 2, 5, 1),
    Sketcher.Constraint("Tangent", 5, 2, 6, 1),
    Sketcher.Constraint("Tangent", 6, 2, 7, 1),
    Sketcher.Constraint("Tangent", 7, 2, 4, 1),
    Sketcher.Constraint("Tangent", 8, 2, 9, 1),
    Sketcher.Constraint("Tangent", 9, 2, 10, 1),
    Sketcher.Constraint("Tangent", 10, 2, 11, 1),
    Sketcher.Constraint("Tangent", 11, 2, 8, 1),
    Sketcher.Constraint("Tangent", 12, 2, 13, 1),
    Sketcher.Constraint("Tangent", 13, 2, 14, 1),
    Sketcher.Constraint("Tangent", 14, 2, 15, 1),
    Sketcher.Constraint("Tangent", 15, 2, 12, 1),
    Sketcher.Constraint("Tangent", 16, 2, 17, 1),
    Sketcher.Constraint("Tangent", 17, 2, 18, 1),
    Sketcher.Constraint("Tangent", 18, 2, 19, 1),
    Sketcher.Constraint("Tangent", 19, 2, 16, 1),
    Sketcher.Constraint("Vertical", 0),
    Sketcher.Constraint("Vertical", 2),
    Sketcher.Constraint("Vertical", 4),
    Sketcher.Constraint("Vertical", 6),
    Sketcher.Constraint("Vertical", 8),
    Sketcher.Constraint("Vertical", 10),
    Sketcher.Constraint("Vertical", 12),
    Sketcher.Constraint("Vertical", 14),
    Sketcher.Constraint("Vertical", 16),
    Sketcher.Constraint("Vertical", 18),
    Sketcher.Constraint("Equal", 3, 5),
    Sketcher.Constraint("Equal", 7, 9),
    Sketcher.Constraint("Equal", 11, 13),
    Sketcher.Constraint("Equal", 15, 17),
    Sketcher.Constraint("Horizontal", 5, 3, 9, 3),
    Sketcher.Constraint("Horizontal", 7, 3, 11, 3),
    Sketcher.Constraint("Horizontal", 9, 3, 13, 3),
    Sketcher.Constraint("Horizontal", 11, 3, 15, 3),
    Sketcher.Constraint("Horizontal", 13, 3, 17, 3),
    Sketcher.Constraint("Horizontal", 15, 3, 19, 3),
    Sketcher.Constraint("Radius", 1, 1.125),
    Sketcher.Constraint("DistanceX", 9, 3, 5, 3, 8.0),
    Sketcher.Constraint("DistanceX", 13, 3, 9, 3, 8.0),
    Sketcher.Constraint("DistanceX", 17, 3, 13, 3, 8.0),
    Sketcher.Constraint("DistanceY", -1, 1, 1, 3, 37.5),
    Sketcher.Constraint("DistanceX", 5, 3, 3, 3, 5.5),
    Sketcher.Constraint("DistanceY", 4, 1, 4, 2, 13.154779),
    Sketcher.Constraint("DistanceY", 7, 3, 3, 3, 7.030299),
    Sketcher.Constraint("DistanceY", 0, 1, 0, 2, 20.411546),
    Sketcher.Constraint("DistanceX", -1, 1, 1, 3, 22.792188),
])
pocket5 = body.newObject("PartDesign::Pocket", "Pocket004")
pocket5.Profile = sketch10
pocket5.Type = "ThroughAll"

doc.recompute()
